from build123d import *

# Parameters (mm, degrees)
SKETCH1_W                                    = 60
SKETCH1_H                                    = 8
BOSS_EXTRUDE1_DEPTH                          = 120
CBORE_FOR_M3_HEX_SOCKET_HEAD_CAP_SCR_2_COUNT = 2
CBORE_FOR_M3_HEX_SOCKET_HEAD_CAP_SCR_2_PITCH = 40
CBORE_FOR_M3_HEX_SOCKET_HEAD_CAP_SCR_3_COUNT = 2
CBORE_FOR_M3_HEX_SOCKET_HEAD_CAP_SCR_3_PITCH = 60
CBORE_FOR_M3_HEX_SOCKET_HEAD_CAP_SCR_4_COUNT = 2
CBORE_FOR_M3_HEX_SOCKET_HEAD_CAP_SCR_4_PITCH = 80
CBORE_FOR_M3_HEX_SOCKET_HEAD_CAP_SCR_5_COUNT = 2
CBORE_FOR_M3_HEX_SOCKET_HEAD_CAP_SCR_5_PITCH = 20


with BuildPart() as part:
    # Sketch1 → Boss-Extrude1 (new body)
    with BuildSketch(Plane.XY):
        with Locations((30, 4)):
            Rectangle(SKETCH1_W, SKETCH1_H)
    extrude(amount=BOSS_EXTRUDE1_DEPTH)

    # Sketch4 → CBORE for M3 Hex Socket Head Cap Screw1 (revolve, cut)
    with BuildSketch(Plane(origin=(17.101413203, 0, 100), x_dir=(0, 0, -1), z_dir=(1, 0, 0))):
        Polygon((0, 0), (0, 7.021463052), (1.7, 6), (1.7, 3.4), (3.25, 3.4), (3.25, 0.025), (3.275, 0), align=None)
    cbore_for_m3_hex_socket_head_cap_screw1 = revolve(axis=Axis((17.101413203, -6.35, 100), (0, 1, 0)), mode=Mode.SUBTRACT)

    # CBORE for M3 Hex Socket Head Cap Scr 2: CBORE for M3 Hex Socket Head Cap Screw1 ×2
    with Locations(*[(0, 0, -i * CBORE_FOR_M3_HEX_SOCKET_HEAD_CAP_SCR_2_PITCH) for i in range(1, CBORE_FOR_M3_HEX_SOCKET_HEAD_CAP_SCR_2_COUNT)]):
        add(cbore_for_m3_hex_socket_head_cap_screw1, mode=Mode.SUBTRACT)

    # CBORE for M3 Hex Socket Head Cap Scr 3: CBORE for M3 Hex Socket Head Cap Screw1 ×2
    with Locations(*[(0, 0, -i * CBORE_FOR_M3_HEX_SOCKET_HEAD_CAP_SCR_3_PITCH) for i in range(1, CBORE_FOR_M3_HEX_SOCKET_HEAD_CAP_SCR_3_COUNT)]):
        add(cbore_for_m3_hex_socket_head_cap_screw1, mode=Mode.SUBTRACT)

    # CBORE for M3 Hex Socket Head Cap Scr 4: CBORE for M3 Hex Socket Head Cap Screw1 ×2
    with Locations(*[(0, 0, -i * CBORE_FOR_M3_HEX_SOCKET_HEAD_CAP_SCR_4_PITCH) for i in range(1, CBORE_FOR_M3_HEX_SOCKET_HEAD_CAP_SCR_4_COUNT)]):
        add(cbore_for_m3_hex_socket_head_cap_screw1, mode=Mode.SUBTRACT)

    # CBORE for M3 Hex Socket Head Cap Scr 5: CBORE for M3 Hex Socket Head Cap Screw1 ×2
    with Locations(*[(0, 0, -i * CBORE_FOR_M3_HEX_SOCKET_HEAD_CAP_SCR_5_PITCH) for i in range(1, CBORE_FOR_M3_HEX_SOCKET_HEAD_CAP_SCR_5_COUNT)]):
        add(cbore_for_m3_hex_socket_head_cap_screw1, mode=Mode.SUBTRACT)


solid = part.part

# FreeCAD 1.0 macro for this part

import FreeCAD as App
import Part
import Sketcher
Q = App.Units.Quantity

doc = App.newDocument("Part")
body = doc.addObject("PartDesign::Body", "Body")

# Sketch on XY plane
sketch1 = body.newObject("Sketcher::SketchObject", "Sketch")
sketch1.AttachmentSupport = (doc.getObject("XY_Plane"), [""])
sketch1.MapMode = "FlatFace"
sketch1.addGeometry([
    Part.LineSegment(App.Vector(0, 8, 0), App.Vector(0, 0, 0)),
    Part.LineSegment(App.Vector(0, 0, 0), App.Vector(60, 0, 0)),
    Part.LineSegment(App.Vector(60, 0, 0), App.Vector(60, 8, 0)),
    Part.LineSegment(App.Vector(60, 8, 0), App.Vector(0, 8, 0)),
], False)
sketch1.addConstraint([
    Sketcher.Constraint("Coincident", 0, 2, 1, 1),
    Sketcher.Constraint("Coincident", 1, 2, 2, 1),
    Sketcher.Constraint("Coincident", 2, 2, 3, 1),
    Sketcher.Constraint("Coincident", 3, 2, 0, 1),
    Sketcher.Constraint("Vertical", 0),
    Sketcher.Constraint("Horizontal", 1),
    Sketcher.Constraint("Vertical", 2),
    Sketcher.Constraint("Horizontal", 3),
    Sketcher.Constraint("Coincident", 0, 2, -1, 1),
    Sketcher.Constraint("DistanceX", 1, 1, 1, 2, Q("60 mm")),
    Sketcher.Constraint("DistanceY", 0, 2, 0, 1, Q("8 mm")),
])
pad1 = body.newObject("PartDesign::Pad", "Pad")
pad1.Profile = sketch1
pad1.Length = 120

# Sketch on YZ plane
sketch2 = body.newObject("Sketcher::SketchObject", "Sketch001")
sketch2.AttachmentSupport = (doc.getObject("YZ_Plane"), [""])
sketch2.MapMode = "FlatFace"
sketch2.AttachmentOffset = App.Placement(App.Vector(0, 0, 17.101413), App.Rotation())
sketch2.addGeometry([
    Part.LineSegment(App.Vector(7.021, 100, 0), App.Vector(0, 100, 0)),  # 0
    Part.LineSegment(App.Vector(0, 100, 0), App.Vector(0, 96.725, 0)),  # 1
    Part.LineSegment(App.Vector(0, 96.725, 0), App.Vector(0.025, 96.75, 0)),  # 2
    Part.LineSegment(App.Vector(0.025, 96.75, 0), App.Vector(3.4, 96.75, 0)),  # 3
    Part.LineSegment(App.Vector(3.4, 96.75, 0), App.Vector(3.4, 98.3, 0)),  # 4
    Part.LineSegment(App.Vector(3.4, 98.3, 0), App.Vector(6, 98.3, 0)),  # 5
    Part.LineSegment(App.Vector(6, 98.3, 0), App.Vector(7.021, 100, 0)),  # 6
], False)
sketch2.addGeometry(Part.LineSegment(App.Vector(0, 100, 0), App.Vector(7.021, 100, 0)), True)  # axis
sketch2.addConstraint([
    Sketcher.Constraint("Coincident", 0, 2, 1, 1),
    Sketcher.Constraint("Coincident", 1, 2, 2, 1),
    Sketcher.Constraint("Coincident", 2, 2, 3, 1),
    Sketcher.Constraint("Coincident", 3, 2, 4, 1),
    Sketcher.Constraint("Coincident", 4, 2, 5, 1),
    Sketcher.Constraint("Coincident", 5, 2, 6, 1),
    Sketcher.Constraint("Coincident", 6, 2, 0, 1),
    Sketcher.Constraint("Horizontal", 0),
    Sketcher.Constraint("Vertical", 1),
    Sketcher.Constraint("Horizontal", 3),
    Sketcher.Constraint("Vertical", 4),
    Sketcher.Constraint("Horizontal", 5),
    Sketcher.Constraint("Horizontal", 7),
    Sketcher.Constraint("Coincident", 7, 1, 0, 2),
    Sketcher.Constraint("PointOnObject", 0, 2, -2),
    Sketcher.Constraint("Equal", 0, 7),
    Sketcher.Constraint("Angle", 2, Q("45 deg")),
    Sketcher.Constraint("Angle", 6, Q("59 deg")),
    Sketcher.Constraint("DistanceX", 5, 1, 5, 2, Q("2.6 mm")),
    Sketcher.Constraint("DistanceY", -1, 1, 0, 2, Q("100 mm")),
    Sketcher.Constraint("DistanceX", -1, 1, 5, 2, Q("6 mm")),
    Sketcher.Constraint("DistanceY", 4, 1, 4, 2, Q("1.55 mm")),
    Sketcher.Constraint("DistanceY", -1, 1, 4, 2, Q("98.3 mm")),
    Sketcher.Constraint("DistanceX", 3, 1, 3, 2, Q("3.375 mm")),
])
groove = body.newObject("PartDesign::Groove", "Groove")
groove.Profile = sketch2
groove.ReferenceAxis = (sketch2, ["Axis0"])
groove.Angle = 360
doc.recompute()

linearpattern = body.newObject("PartDesign::LinearPattern", "LinearPattern")
linearpattern.Originals = [groove]
linearpattern.Direction = (doc.getObject("Z_Axis"), [""])
linearpattern.Mode = "offset"
linearpattern.Offset = 40
linearpattern.Occurrences = 2
linearpattern.Reversed = True
body.Tip = linearpattern
doc.recompute()

linearpattern2 = body.newObject("PartDesign::LinearPattern", "LinearPattern001")
linearpattern2.Originals = [groove]
linearpattern2.Direction = (doc.getObject("Z_Axis"), [""])
linearpattern2.Mode = "offset"
linearpattern2.Offset = 60
linearpattern2.Occurrences = 2
linearpattern2.Reversed = True
body.Tip = linearpattern2
doc.recompute()

linearpattern3 = body.newObject("PartDesign::LinearPattern", "LinearPattern002")
linearpattern3.Originals = [groove]
linearpattern3.Direction = (doc.getObject("Z_Axis"), [""])
linearpattern3.Mode = "offset"
linearpattern3.Offset = 80
linearpattern3.Occurrences = 2
linearpattern3.Reversed = True
body.Tip = linearpattern3
doc.recompute()

linearpattern4 = body.newObject("PartDesign::LinearPattern", "LinearPattern003")
linearpattern4.Originals = [groove]
linearpattern4.Direction = (doc.getObject("Z_Axis"), [""])
linearpattern4.Mode = "offset"
linearpattern4.Offset = 20
linearpattern4.Occurrences = 2
linearpattern4.Reversed = True
body.Tip = linearpattern4

doc.recompute()
